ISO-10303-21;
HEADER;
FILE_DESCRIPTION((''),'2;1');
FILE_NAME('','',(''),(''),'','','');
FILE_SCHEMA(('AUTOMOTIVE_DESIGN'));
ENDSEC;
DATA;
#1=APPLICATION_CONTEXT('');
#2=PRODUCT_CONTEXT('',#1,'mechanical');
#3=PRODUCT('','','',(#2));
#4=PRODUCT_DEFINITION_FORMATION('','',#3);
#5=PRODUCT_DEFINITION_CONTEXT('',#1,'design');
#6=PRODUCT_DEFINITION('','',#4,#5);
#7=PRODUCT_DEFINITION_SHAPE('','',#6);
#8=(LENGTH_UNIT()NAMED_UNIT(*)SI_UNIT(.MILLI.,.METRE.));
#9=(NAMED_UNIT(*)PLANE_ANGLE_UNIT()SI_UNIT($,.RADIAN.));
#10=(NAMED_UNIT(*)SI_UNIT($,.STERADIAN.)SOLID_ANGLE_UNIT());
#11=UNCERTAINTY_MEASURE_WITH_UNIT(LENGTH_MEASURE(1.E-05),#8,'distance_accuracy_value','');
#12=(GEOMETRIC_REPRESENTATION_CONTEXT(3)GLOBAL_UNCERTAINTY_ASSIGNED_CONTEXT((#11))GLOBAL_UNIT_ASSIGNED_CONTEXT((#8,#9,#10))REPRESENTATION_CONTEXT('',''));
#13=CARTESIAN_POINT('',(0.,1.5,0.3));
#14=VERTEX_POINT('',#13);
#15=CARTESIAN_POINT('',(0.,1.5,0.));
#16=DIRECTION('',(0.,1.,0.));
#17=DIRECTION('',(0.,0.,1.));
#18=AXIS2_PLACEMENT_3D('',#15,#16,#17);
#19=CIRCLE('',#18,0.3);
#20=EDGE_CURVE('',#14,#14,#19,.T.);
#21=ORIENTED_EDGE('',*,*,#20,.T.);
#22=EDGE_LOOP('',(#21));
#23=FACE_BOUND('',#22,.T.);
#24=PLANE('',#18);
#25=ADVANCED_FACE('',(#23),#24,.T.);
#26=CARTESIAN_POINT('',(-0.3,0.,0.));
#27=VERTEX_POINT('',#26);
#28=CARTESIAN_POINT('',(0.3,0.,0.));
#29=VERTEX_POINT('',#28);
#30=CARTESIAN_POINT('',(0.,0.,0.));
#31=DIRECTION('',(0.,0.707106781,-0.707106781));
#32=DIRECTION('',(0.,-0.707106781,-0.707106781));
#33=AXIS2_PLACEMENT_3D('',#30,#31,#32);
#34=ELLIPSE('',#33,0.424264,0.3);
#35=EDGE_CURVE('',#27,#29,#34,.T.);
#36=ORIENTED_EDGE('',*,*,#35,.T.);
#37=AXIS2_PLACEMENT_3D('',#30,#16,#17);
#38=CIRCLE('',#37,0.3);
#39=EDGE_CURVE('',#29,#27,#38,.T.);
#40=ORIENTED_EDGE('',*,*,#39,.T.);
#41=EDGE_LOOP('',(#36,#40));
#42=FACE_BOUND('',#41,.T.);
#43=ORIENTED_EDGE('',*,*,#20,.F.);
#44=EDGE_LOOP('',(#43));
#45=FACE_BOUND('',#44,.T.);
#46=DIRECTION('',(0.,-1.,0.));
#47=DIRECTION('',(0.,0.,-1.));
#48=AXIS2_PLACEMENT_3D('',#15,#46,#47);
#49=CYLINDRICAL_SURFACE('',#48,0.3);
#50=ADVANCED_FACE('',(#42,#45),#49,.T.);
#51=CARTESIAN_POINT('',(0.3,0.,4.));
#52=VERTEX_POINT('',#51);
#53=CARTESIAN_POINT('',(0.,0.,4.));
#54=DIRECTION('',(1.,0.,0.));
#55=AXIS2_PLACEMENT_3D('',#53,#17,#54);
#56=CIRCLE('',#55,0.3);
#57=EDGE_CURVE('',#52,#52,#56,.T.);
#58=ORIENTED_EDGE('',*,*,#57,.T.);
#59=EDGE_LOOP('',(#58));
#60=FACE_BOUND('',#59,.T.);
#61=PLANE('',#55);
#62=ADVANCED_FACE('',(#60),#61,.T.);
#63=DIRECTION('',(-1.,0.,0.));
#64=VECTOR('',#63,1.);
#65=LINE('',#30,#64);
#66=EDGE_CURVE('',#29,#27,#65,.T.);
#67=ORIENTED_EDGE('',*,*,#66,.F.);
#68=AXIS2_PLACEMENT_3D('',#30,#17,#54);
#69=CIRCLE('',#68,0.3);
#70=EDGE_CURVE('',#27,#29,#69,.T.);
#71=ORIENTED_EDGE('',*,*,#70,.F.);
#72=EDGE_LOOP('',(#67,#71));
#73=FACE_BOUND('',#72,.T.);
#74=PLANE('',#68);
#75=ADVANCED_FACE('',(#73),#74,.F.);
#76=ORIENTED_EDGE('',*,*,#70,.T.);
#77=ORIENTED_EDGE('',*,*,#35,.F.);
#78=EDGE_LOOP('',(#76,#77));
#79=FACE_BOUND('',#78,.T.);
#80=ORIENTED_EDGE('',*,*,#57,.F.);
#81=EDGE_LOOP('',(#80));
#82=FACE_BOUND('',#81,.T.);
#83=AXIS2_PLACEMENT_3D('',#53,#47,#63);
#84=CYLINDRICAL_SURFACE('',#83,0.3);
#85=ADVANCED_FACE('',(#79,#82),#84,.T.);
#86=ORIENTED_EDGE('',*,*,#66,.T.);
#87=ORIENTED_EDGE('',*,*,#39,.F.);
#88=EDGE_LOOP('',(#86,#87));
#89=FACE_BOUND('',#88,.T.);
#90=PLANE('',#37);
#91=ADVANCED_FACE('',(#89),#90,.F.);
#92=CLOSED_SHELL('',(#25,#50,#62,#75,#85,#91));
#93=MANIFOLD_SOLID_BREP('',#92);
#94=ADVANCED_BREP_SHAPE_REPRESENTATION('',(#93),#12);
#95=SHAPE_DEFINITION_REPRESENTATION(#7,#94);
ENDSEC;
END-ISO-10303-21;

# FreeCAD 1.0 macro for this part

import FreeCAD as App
import Part
import Sketcher
Q = App.Units.Quantity

doc = App.newDocument("Part")
body = doc.addObject("PartDesign::Body", "Body")

sketch1 = body.newObject("Sketcher::SketchObject", "Sketch")
sketch1.AttachmentSupport = (doc.getObject("XY_Plane"), [""])
sketch1.MapMode = "FlatFace"
sketch1.addGeometry(Part.Circle(App.Vector(0, 0, 0), App.Vector(0, 0, 1), 0.3), False)
sketch1.addConstraint([
    Sketcher.Constraint("Coincident", 0, 3, -1, 1),
    Sketcher.Constraint("Diameter", 0, Q("0.6 mm")),
])
pad1 = body.newObject("PartDesign::Pad", "Pad")
pad1.Profile = sketch1
pad1.Length = 4

sketch2 = body.newObject("Sketcher::SketchObject", "Sketch001")
sketch2.AttachmentSupport = (doc.getObject("XZ_Plane"), [""])
sketch2.MapMode = "FlatFace"
sketch2.addGeometry(Part.Circle(App.Vector(0, 0, 0), App.Vector(0, 0, 1), 0.3), False)
sketch2.addConstraint([
    Sketcher.Constraint("Coincident", 0, 3, -1, 1),
    Sketcher.Constraint("Diameter", 0, Q("0.6 mm")),
])
pad2 = body.newObject("PartDesign::Pad", "Pad001")
pad2.Profile = sketch2
pad2.Length = 1.5
pad2.Reversed = True

doc.recompute()
